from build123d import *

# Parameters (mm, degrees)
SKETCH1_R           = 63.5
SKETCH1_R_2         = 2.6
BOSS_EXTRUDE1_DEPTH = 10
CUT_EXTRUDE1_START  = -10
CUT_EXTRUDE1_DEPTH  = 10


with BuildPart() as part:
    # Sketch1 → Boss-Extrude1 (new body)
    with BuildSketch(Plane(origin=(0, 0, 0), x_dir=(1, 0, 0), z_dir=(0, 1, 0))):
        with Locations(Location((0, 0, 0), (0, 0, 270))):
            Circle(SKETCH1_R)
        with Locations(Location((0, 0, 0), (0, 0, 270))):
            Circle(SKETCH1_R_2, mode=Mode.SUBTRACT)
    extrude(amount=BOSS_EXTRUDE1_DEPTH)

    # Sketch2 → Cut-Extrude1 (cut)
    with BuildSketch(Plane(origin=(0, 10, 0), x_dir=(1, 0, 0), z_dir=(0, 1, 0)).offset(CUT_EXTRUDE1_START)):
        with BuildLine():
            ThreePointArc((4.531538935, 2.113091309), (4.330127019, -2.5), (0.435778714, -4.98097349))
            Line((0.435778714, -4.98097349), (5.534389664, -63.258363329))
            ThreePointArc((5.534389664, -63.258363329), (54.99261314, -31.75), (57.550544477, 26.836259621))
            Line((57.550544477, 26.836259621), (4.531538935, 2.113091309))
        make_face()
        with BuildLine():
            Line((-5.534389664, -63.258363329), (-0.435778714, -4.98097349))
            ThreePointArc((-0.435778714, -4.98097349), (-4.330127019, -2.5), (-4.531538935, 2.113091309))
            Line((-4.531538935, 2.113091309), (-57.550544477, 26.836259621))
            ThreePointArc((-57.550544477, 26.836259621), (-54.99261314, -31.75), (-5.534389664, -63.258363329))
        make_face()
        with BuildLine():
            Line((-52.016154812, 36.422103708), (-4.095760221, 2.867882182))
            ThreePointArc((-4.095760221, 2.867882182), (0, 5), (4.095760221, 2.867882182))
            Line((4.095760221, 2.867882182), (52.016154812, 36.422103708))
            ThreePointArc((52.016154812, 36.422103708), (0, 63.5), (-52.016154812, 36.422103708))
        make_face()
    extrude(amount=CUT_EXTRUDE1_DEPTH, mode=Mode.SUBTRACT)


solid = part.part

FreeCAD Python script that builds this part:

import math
import FreeCAD as App
import Part
import Sketcher
Q = App.Units.Quantity

doc = App.newDocument("Part")
params = doc.addObject("Spreadsheet::Sheet", "Params")
for row, (alias, value) in enumerate([
    ("sketch1_diameter", "127 mm"),
    ("sketch1_diameter2", "5.2 mm"),
    ("pad1_length", "10 mm"),
    ("sketch2_radius", "5 mm"),
    ("sketch2_radius2", "63.5 mm"),
    ("pocket1_length", "10 mm"),
], start=1):
    params.set(f"A{row}", alias)
    params.set(f"B{row}", "=" + value)
    params.setAlias(f"B{row}", alias)

body = doc.addObject("PartDesign::Body", "Body")

# Sketch on XZ plane
sketch1 = doc.addObject("Sketcher::SketchObject", "Sketch")
body.addObject(sketch1)
sketch1.AttachmentSupport = (doc.XZ_Plane, [""])
sketch1.MapMode = "FlatFace"
sketch1.addGeometry([
    Part.Circle(App.Vector(0, 0, 0), App.Vector(0, 0, 1), 63.5),
    Part.Circle(App.Vector(0, 0, 0), App.Vector(0, 0, 1), 2.6),
], False)
sketch1.addConstraint([
    Sketcher.Constraint("Coincident", 0, 3, -1, 1),
    Sketcher.Constraint("Coincident", 1, 3, -1, 1),
    Sketcher.Constraint("Diameter", 0, 127.0),
    Sketcher.Constraint("Diameter", 1, 5.2),
])
sketch1.setExpression("Constraints[2]", "Params.sketch1_diameter")
sketch1.setExpression("Constraints[3]", "Params.sketch1_diameter2")
pad1 = doc.addObject("PartDesign::Pad", "Pad")
body.addObject(pad1)
pad1.Profile = sketch1
pad1.setExpression("Length", "Params.pad1_length")
pad1.Reversed = True

# Sketch on XZ plane
sketch2 = doc.addObject("Sketcher::SketchObject", "Sketch001")
body.addObject(sketch2)
sketch2.AttachmentSupport = (doc.XZ_Plane, [""])
sketch2.MapMode = "FlatFace"
sketch2.addGeometry([
    Part.ArcOfCircle(Part.Circle(App.Vector(0, 0, 0), App.Vector(0, 0, 1), 5), math.radians(-25), math.radians(85)),  # 0
    Part.LineSegment(App.Vector(0.4, 5, 0), App.Vector(5.5, 63.3, 0)),  # 1
    Part.ArcOfCircle(Part.Circle(App.Vector(0, 0, 0), App.Vector(0, 0, 1), 63.5), math.radians(-25), math.radians(85)),  # 2
    Part.LineSegment(App.Vector(57.6, -26.8, 0), App.Vector(4.5, -2.1, 0)),  # 3
    Part.LineSegment(App.Vector(-5.5, 63.3, 0), App.Vector(-0.4, 5, 0)),  # 4
    Part.ArcOfCircle(Part.Circle(App.Vector(0, 0, 0), App.Vector(0, 0, 1), 5), math.radians(95), math.radians(205)),  # 5
    Part.LineSegment(App.Vector(-4.5, -2.1, 0), App.Vector(-57.6, -26.8, 0)),  # 6
    Part.ArcOfCircle(Part.Circle(App.Vector(0, 0, 0), App.Vector(0, 0, 1), 63.5), math.radians(95), math.radians(205)),  # 7
    Part.LineSegment(App.Vector(-52, -36.4, 0), App.Vector(-4.1, -2.9, 0)),  # 8
    Part.ArcOfCircle(Part.Circle(App.Vector(0, 0, 0), App.Vector(0, 0, 1), 5), math.radians(-145), math.radians(-35)),  # 9
    Part.LineSegment(App.Vector(4.1, -2.9, 0), App.Vector(52, -36.4, 0)),  # 10
    Part.ArcOfCircle(Part.Circle(App.Vector(0, 0, 0), App.Vector(0, 0, 1), 63.5), math.radians(-145), math.radians(-35)),  # 11
], False)
sketch2.addConstraint([
    Sketcher.Constraint("Coincident", 0, 2, 1, 1),
    Sketcher.Constraint("Coincident", 1, 2, 2, 2),
    Sketcher.Constraint("Coincident", 2, 1, 3, 1),
    Sketcher.Constraint("Coincident", 3, 2, 0, 1),
    Sketcher.Constraint("Coincident", 4, 2, 5, 1),
    Sketcher.Constraint("Coincident", 5, 2, 6, 1),
    Sketcher.Constraint("Coincident", 6, 2, 7, 2),
    Sketcher.Constraint("Coincident", 7, 1, 4, 1),
    Sketcher.Constraint("Coincident", 8, 2, 9, 1),
    Sketcher.Constraint("Coincident", 9, 2, 10, 1),
    Sketcher.Constraint("Coincident", 10, 2, 11, 2),
    Sketcher.Constraint("Coincident", 11, 1, 8, 1),
    Sketcher.Constraint("Coincident", 0, 3, -1, 1),
    Sketcher.Constraint("Coincident", 2, 3, -1, 1),
    Sketcher.Constraint("Coincident", 5, 3, -1, 1),
    Sketcher.Constraint("Coincident", 7, 3, -1, 1),
    Sketcher.Constraint("Coincident", 9, 3, -1, 1),
    Sketcher.Constraint("Coincident", 11, 3, -1, 1),
    Sketcher.Constraint("Equal", 0, 5),
    Sketcher.Constraint("Equal", 2, 7),
    Sketcher.Constraint("Equal", 5, 9),
    Sketcher.Constraint("Equal", 7, 11),
    Sketcher.Constraint("Horizontal", 0, 2, 4, 2),
    Sketcher.Constraint("Horizontal", 3, 2, 5, 2),
    Sketcher.Constraint("Horizontal", 2, 1, 6, 2),
    Sketcher.Constraint("Horizontal", 1, 2, 7, 1),
    Sketcher.Constraint("Horizontal", 8, 2, 9, 2),
    Sketcher.Constraint("Horizontal", 10, 2, 11, 1),
    Sketcher.Constraint("Radius", 0, 5.0),
    Sketcher.Constraint("Radius", 2, 63.5),
    Sketcher.Constraint("Angle", 1, Q("85 deg")),
    Sketcher.Constraint("Angle", 3, Q("155 deg")),
    Sketcher.Constraint("Angle", 8, Q("35 deg")),
    Sketcher.Constraint("DistanceX", -1, 1, 0, 2, 0.435779),
    Sketcher.Constraint("DistanceY", 2, 1, -1, 1, 26.83626),
    Sketcher.Constraint("DistanceX", 8, 2, -1, 1, 4.09576),
])
sketch2.setExpression("Constraints[28]", "Params.sketch2_radius")
sketch2.setExpression("Constraints[29]", "Params.sketch2_radius2")
pocket1 = doc.addObject("PartDesign::Pocket", "Pocket")
body.addObject(pocket1)
pocket1.Profile = sketch2
pocket1.setExpression("Length", "Params.pocket1_length")

doc.recompute()
